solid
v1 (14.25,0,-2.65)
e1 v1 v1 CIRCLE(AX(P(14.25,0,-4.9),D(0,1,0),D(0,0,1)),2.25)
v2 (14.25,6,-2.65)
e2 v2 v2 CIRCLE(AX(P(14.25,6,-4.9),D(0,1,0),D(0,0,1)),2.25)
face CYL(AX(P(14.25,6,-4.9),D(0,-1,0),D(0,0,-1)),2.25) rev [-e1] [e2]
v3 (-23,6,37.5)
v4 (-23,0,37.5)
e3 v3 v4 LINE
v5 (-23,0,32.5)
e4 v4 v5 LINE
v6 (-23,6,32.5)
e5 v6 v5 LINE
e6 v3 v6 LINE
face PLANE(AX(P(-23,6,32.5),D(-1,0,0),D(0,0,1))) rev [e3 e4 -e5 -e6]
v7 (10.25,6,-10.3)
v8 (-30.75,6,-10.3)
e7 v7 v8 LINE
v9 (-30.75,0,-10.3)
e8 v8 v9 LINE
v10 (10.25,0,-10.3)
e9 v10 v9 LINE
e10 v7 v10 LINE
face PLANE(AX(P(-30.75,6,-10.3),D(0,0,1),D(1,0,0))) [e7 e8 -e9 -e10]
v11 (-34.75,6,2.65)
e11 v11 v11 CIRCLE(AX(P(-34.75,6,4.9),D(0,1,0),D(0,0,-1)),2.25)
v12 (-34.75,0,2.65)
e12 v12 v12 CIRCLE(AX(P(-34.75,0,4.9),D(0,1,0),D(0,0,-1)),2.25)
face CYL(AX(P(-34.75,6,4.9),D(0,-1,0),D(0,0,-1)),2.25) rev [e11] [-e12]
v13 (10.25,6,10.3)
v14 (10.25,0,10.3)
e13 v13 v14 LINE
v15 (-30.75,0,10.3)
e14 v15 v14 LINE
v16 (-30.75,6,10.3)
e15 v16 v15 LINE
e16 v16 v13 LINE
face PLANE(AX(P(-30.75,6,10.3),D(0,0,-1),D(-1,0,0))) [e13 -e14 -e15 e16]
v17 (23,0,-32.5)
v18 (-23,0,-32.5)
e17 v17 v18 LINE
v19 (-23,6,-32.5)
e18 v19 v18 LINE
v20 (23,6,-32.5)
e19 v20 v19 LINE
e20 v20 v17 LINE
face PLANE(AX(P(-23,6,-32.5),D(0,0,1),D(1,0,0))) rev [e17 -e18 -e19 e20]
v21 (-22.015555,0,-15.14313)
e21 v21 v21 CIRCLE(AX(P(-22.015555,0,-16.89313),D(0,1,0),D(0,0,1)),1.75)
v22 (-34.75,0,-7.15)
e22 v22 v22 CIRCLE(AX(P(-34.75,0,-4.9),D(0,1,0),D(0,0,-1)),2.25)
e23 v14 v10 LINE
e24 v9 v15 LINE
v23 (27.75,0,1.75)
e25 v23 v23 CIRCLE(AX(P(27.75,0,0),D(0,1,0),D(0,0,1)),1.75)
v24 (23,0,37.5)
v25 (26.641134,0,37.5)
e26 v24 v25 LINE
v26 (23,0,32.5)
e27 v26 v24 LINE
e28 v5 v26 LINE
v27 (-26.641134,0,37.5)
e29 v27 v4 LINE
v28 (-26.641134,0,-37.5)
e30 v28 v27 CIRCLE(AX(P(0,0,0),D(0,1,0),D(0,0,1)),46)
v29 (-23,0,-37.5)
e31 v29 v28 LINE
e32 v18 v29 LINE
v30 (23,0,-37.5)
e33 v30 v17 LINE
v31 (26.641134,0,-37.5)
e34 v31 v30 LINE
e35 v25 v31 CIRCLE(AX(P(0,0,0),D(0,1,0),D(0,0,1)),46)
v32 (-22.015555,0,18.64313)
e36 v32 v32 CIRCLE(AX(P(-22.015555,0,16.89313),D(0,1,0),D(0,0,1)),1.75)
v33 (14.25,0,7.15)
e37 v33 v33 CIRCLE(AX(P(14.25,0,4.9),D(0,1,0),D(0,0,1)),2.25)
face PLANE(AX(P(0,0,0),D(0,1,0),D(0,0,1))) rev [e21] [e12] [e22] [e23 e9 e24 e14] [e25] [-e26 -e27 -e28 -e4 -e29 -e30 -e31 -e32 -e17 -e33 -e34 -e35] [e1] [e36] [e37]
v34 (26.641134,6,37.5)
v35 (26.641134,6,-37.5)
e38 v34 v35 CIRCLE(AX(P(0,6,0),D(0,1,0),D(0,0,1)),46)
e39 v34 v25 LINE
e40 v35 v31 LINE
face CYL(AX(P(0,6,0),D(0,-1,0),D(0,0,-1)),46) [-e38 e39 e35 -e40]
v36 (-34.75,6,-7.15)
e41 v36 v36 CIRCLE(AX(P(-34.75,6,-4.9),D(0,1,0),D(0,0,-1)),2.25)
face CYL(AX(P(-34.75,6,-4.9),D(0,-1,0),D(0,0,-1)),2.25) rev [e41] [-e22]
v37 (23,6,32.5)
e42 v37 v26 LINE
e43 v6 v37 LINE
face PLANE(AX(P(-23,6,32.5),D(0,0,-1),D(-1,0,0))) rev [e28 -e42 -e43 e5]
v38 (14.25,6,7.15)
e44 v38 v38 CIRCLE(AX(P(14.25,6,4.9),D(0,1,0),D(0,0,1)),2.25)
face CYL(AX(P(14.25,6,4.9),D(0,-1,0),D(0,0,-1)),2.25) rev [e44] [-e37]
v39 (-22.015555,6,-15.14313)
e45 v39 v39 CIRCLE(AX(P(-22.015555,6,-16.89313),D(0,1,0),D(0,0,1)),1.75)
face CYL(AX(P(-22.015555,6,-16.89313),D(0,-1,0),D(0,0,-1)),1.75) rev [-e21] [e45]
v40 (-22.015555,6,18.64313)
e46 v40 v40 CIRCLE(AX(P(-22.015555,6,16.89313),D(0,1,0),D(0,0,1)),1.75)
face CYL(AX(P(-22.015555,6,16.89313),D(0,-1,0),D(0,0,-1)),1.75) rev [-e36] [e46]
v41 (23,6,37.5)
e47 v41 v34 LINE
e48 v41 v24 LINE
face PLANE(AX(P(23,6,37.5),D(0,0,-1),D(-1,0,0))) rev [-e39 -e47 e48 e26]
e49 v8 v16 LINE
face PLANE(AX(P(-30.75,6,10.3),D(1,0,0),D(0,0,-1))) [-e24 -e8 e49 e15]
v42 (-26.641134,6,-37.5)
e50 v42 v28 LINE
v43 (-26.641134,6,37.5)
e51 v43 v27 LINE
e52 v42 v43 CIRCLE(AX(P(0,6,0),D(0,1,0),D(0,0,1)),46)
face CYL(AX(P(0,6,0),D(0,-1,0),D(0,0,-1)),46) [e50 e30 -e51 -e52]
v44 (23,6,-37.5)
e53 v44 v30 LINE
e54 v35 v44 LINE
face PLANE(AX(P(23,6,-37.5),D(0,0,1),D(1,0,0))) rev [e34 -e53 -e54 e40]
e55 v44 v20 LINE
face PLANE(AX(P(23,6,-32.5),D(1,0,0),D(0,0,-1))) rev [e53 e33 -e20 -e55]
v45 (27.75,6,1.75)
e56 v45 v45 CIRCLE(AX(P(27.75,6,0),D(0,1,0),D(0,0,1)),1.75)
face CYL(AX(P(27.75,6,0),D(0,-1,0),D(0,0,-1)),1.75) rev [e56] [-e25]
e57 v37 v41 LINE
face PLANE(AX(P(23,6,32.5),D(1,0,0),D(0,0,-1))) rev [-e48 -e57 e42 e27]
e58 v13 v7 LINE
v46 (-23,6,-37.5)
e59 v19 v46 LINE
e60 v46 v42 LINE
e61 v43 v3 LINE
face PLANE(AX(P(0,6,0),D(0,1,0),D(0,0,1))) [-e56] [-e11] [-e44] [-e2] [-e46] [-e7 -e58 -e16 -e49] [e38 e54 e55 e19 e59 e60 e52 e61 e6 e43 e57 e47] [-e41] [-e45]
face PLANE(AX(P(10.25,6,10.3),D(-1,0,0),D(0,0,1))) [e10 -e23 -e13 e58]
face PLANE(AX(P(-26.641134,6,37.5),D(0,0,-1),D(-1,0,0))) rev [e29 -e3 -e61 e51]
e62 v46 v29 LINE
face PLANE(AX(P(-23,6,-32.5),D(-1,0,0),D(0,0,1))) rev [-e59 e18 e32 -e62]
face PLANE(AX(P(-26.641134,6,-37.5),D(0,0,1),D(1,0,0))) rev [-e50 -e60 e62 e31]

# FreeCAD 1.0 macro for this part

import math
import FreeCAD as App
import Part
import Sketcher
Q = App.Units.Quantity

doc = App.newDocument("Part")
body = doc.addObject("PartDesign::Body", "Body")

# Sketch on XZ plane
sketch1 = body.newObject("Sketcher::SketchObject", "Sketch")
sketch1.AttachmentSupport = (doc.getObject("XZ_Plane"), [""])
sketch1.MapMode = "FlatFace"
sketch1.addGeometry([
    Part.LineSegment(App.Vector(-23, -37.5, 0), App.Vector(-26.6, -37.5, 0)),  # 0
    Part.ArcOfCircle(Part.Circle(App.Vector(0, 0, 0), App.Vector(0, 0, 1), 46), math.radians(125), math.radians(235)),  # 1
    Part.LineSegment(App.Vector(-26.6, 37.5, 0), App.Vector(-23, 37.5, 0)),  # 2
    Part.LineSegment(App.Vector(-23, 37.5, 0), App.Vector(-23, 32.5, 0)),  # 3
    Part.LineSegment(App.Vector(-23, 32.5, 0), App.Vector(23, 32.5, 0)),  # 4
    Part.LineSegment(App.Vector(23, 32.5, 0), App.Vector(23, 37.5, 0)),  # 5
    Part.LineSegment(App.Vector(23, 37.5, 0), App.Vector(26.6, 37.5, 0)),  # 6
    Part.ArcOfCircle(Part.Circle(App.Vector(0, 0, 0), App.Vector(0, 0, 1), 46), math.radians(-55), math.radians(55)),  # 7
    Part.LineSegment(App.Vector(26.6, -37.5, 0), App.Vector(23, -37.5, 0)),  # 8
    Part.LineSegment(App.Vector(23, -37.5, 0), App.Vector(23, -32.5, 0)),  # 9
    Part.LineSegment(App.Vector(23, -32.5, 0), App.Vector(-23, -32.5, 0)),  # 10
    Part.LineSegment(App.Vector(-23, -32.5, 0), App.Vector(-23, -37.5, 0)),  # 11
    Part.Circle(App.Vector(14.2, 4.9, 0), App.Vector(0, 0, 1), 2.2),  # 12
    Part.Circle(App.Vector(-22, 16.9, 0), App.Vector(0, 0, 1), 1.8),  # 13
    Part.Circle(App.Vector(-34.8, 4.9, 0), App.Vector(0, 0, 1), 2.2),  # 14
    Part.Circle(App.Vector(27.8, 0, 0), App.Vector(0, 0, 1), 1.8),  # 15
    Part.Circle(App.Vector(14.2, -4.9, 0), App.Vector(0, 0, 1), 2.2),  # 16
    Part.LineSegment(App.Vector(-30.8, 10.3, 0), App.Vector(-30.8, -10.3, 0)),  # 17
    Part.LineSegment(App.Vector(-30.8, -10.3, 0), App.Vector(10.2, -10.3, 0)),  # 18
    Part.LineSegment(App.Vector(10.2, -10.3, 0), App.Vector(10.2, 10.3, 0)),  # 19
    Part.LineSegment(App.Vector(10.2, 10.3, 0), App.Vector(-30.8, 10.3, 0)),  # 20
    Part.Circle(App.Vector(-34.8, -4.9, 0), App.Vector(0, 0, 1), 2.2),  # 21
    Part.Circle(App.Vector(-22, -16.9, 0), App.Vector(0, 0, 1), 1.8),  # 22
], False)
sketch1.addConstraint([
    Sketcher.Constraint("Coincident", 0, 2, 1, 2),
    Sketcher.Constraint("Coincident", 1, 1, 2, 1),
    Sketcher.Constraint("Coincident", 2, 2, 3, 1),
    Sketcher.Constraint("Coincident", 3, 2, 4, 1),
    Sketcher.Constraint("Coincident", 4, 2, 5, 1),
    Sketcher.Constraint("Coincident", 5, 2, 6, 1),
    Sketcher.Constraint("Coincident", 6, 2, 7, 2),
    Sketcher.Constraint("Coincident", 7, 1, 8, 1),
    Sketcher.Constraint("Coincident", 8, 2, 9, 1),
    Sketcher.Constraint("Coincident", 9, 2, 10, 1),
    Sketcher.Constraint("Coincident", 10, 2, 11, 1),
    Sketcher.Constraint("Coincident", 11, 2, 0, 1),
    Sketcher.Constraint("Coincident", 17, 2, 18, 1),
    Sketcher.Constraint("Coincident", 18, 2, 19, 1),
    Sketcher.Constraint("Coincident", 19, 2, 20, 1),
    Sketcher.Constraint("Coincident", 20, 2, 17, 1),
    Sketcher.Constraint("Horizontal", 0),
    Sketcher.Constraint("Horizontal", 2),
    Sketcher.Constraint("Vertical", 3),
    Sketcher.Constraint("Horizontal", 4),
    Sketcher.Constraint("Vertical", 5),
    Sketcher.Constraint("Horizontal", 6),
    Sketcher.Constraint("Horizontal", 8),
    Sketcher.Constraint("Vertical", 9),
    Sketcher.Constraint("Horizontal", 10),
    Sketcher.Constraint("Vertical", 11),
    Sketcher.Constraint("Vertical", 17),
    Sketcher.Constraint("Horizontal", 18),
    Sketcher.Constraint("Vertical", 19),
    Sketcher.Constraint("Horizontal", 20),
    Sketcher.Constraint("Coincident", 1, 3, -1, 1),
    Sketcher.Constraint("Coincident", 7, 3, -1, 1),
    Sketcher.Constraint("Equal", 1, 7),
    Sketcher.Constraint("Equal", 12, 14),
    Sketcher.Constraint("Equal", 13, 15),
    Sketcher.Constraint("Equal", 14, 16),
    Sketcher.Constraint("Equal", 16, 21),
    Sketcher.Constraint("Equal", 15, 22),
    Sketcher.Constraint("Symmetric", 2, 2, 8, 2, -1, 1),
    Sketcher.Constraint("Symmetric", 4, 2, 10, 2, -1, 1),
    Sketcher.Constraint("Symmetric", 2, 2, 5, 2, -2),
    Sketcher.Constraint("Symmetric", 12, 3, 16, 3, -1),
    Sketcher.Constraint("Symmetric", 14, 3, 21, 3, -1),
    Sketcher.Constraint("Symmetric", 13, 3, 22, 3, -1),
    Sketcher.Constraint("PointOnObject", 15, 3, -1),
    Sketcher.Constraint("Horizontal", 12, 3, 14, 3),
    Sketcher.Constraint("Horizontal", 0, 2, 7, 1),
    Sketcher.Constraint("Radius", 1, Q("46 mm")),
    Sketcher.Constraint("Diameter", 12, Q("4.5 mm")),
    Sketcher.Constraint("Diameter", 13, Q("3.5 mm")),
    Sketcher.Constraint("DistanceX", 4, 1, 4, 2, Q("46 mm")),
    Sketcher.Constraint("DistanceX", 18, 1, 18, 2, Q("41 mm")),
    Sketcher.Constraint("DistanceY", 3, 2, 3, 1, Q("5 mm")),
    Sketcher.Constraint("DistanceY", 17, 2, 17, 1, Q("20.6 mm")),
    Sketcher.Constraint("DistanceX", 14, 3, 12, 3, Q("49 mm")),
    Sketcher.Constraint("DistanceX", 21, 3, 17, 2, Q("4 mm")),
    Sketcher.Constraint("DistanceY", -1, 1, 12, 3, Q("4.9 mm")),
    Sketcher.Constraint("DistanceY", 0, 2, -1, 1, Q("37.5 mm")),
    Sketcher.Constraint("DistanceY", 17, 2, -1, 1, Q("10.3 mm")),
    Sketcher.Constraint("DistanceX", 12, 3, 15, 3, Q("13.5 mm")),
    Sketcher.Constraint("DistanceX", -1, 1, 12, 3, Q("14.25 mm")),
    Sketcher.Constraint("DistanceY", -1, 1, 13, 3, Q("16.89313 mm")),
    Sketcher.Constraint("DistanceX", 0, 2, 22, 3, Q("4.625578 mm")),
])
pad1 = body.newObject("PartDesign::Pad", "Pad")
pad1.Profile = sketch1
pad1.Length = 6
pad1.Reversed = True

doc.recompute()
